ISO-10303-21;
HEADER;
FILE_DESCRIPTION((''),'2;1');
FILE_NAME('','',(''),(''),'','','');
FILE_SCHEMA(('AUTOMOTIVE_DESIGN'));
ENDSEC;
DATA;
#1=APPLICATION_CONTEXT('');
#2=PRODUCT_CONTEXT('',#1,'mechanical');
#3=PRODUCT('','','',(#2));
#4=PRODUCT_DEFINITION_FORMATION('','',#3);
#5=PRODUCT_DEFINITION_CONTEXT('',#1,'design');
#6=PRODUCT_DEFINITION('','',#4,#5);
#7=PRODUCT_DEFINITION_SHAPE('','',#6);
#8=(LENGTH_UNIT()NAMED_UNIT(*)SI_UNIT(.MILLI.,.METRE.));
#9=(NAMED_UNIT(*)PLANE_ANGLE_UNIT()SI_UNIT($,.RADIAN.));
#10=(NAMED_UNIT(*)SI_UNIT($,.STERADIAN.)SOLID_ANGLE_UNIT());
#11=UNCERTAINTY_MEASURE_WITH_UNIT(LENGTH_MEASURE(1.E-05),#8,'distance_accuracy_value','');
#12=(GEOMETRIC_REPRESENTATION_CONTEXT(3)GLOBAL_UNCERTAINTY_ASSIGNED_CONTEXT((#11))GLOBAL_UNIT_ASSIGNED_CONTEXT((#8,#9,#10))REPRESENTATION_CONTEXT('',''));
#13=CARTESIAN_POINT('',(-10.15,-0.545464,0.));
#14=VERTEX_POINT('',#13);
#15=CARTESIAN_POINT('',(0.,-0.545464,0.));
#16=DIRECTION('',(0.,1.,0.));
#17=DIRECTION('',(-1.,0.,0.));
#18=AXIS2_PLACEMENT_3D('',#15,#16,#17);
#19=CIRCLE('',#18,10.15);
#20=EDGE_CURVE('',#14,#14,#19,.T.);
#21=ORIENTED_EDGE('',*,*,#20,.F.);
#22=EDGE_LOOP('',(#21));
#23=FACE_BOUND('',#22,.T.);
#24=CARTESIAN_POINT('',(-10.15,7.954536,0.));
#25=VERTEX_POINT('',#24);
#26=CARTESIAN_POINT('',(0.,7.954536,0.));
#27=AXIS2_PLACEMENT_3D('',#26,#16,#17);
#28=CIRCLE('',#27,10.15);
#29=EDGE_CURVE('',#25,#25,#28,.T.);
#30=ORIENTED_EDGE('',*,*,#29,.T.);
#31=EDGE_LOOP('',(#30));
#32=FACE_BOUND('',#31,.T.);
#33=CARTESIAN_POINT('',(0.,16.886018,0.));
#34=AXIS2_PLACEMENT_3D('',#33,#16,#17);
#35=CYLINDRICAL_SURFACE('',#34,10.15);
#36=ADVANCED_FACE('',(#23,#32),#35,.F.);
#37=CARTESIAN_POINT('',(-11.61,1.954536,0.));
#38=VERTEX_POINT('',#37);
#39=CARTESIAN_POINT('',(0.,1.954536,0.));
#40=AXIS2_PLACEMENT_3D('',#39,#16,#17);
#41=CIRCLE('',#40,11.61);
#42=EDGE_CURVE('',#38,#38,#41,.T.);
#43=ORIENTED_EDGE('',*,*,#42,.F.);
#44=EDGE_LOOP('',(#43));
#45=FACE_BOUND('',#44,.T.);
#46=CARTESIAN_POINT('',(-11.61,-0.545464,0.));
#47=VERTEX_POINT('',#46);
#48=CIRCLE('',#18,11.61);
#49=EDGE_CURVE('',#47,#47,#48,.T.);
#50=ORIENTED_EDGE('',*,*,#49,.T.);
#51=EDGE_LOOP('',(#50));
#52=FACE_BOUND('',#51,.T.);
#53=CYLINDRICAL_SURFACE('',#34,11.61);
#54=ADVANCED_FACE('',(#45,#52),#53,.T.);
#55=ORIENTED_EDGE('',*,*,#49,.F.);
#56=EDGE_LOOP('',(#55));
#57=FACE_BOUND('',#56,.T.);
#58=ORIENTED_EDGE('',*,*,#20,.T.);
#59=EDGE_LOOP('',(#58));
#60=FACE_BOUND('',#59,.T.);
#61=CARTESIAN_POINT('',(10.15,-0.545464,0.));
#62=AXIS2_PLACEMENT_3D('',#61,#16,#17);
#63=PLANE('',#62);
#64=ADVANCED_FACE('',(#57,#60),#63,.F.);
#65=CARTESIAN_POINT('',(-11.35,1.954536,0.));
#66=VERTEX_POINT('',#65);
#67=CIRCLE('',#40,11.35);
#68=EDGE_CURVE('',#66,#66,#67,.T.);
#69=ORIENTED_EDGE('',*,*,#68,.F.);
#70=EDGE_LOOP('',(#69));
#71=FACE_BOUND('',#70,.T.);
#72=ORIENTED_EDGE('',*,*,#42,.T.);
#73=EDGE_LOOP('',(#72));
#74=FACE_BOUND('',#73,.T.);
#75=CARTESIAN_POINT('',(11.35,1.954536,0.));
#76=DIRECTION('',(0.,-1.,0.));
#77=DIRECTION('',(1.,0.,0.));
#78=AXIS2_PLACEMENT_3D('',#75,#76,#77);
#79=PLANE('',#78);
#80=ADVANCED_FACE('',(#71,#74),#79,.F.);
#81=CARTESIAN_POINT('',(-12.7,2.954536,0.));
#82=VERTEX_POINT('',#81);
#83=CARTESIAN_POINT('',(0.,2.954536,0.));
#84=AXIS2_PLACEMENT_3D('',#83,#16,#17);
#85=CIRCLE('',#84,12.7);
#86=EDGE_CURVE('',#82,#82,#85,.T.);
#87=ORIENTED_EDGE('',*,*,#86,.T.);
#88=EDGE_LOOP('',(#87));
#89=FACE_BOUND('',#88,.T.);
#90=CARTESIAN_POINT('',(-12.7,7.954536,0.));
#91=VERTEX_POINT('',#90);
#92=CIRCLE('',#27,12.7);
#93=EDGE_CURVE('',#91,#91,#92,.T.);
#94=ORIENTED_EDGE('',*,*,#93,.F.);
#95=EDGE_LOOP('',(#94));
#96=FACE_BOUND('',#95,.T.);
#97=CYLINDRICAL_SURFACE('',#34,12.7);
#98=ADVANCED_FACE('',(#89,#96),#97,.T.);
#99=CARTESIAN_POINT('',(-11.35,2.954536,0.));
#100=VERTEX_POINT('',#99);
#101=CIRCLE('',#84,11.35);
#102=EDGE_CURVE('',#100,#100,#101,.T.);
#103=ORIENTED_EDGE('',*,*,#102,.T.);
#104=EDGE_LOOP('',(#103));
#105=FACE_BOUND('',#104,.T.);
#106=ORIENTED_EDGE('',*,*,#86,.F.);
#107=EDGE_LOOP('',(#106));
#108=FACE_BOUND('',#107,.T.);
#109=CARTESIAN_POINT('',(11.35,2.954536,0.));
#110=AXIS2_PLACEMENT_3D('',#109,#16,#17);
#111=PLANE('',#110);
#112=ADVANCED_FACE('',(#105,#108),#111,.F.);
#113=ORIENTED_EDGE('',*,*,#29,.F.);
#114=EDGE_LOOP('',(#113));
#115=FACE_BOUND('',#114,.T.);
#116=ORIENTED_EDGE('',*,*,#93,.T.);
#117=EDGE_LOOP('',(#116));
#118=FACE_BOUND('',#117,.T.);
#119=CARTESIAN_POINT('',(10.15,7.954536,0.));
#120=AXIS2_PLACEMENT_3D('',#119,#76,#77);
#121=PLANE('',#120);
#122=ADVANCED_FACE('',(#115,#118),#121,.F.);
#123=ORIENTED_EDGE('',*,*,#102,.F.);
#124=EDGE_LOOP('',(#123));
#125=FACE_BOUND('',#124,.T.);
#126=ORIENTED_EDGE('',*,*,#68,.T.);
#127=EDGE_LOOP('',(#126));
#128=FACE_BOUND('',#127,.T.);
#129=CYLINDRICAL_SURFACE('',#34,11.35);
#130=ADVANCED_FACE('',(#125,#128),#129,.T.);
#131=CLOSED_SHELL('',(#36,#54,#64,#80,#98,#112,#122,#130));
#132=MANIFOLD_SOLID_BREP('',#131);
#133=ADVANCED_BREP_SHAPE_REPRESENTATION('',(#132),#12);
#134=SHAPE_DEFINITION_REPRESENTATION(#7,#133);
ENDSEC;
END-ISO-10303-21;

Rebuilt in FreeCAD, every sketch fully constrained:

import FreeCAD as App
import Part
import Sketcher
from FreeCAD import Vector


def add_polygon(sketch, points):
    """Adds a closed chain of lines whose ends are joined by coincident constraints."""
    first, n = sketch.GeometryCount, len(points)
    for a, b in zip(points, points[1:] + points[:1]):
        sketch.addGeometry(Part.LineSegment(App.Vector(*a, 0), App.Vector(*b, 0)), False)
    for i in range(n):
        sketch.addConstraint(Sketcher.Constraint("Coincident", first + i, 2, first + (i + 1) % n, 1))

doc = App.newDocument("Part")
body = doc.addObject("PartDesign::Body", "Body")

# Sketch on XY plane
sketch1 = doc.addObject("Sketcher::SketchObject", "Sketch")
body.addObject(sketch1)
sketch1.AttachmentSupport = (doc.XY_Plane, [""])
sketch1.MapMode = "FlatFace"
add_polygon(sketch1, [(10.15, 7.95), (10.15, -0.55), (11.61, -0.55), (11.61, 1.95), (11.35, 1.95), (11.35, 2.95), (12.7, 2.95), (12.7, 7.95)])  # lines 0-7
sketch1.addConstraint([
    Sketcher.Constraint("Vertical", 0),
    Sketcher.Constraint("Horizontal", 1),
    Sketcher.Constraint("Vertical", 2),
    Sketcher.Constraint("Horizontal", 3),
    Sketcher.Constraint("Vertical", 4),
    Sketcher.Constraint("Horizontal", 5),
    Sketcher.Constraint("Vertical", 6),
    Sketcher.Constraint("Horizontal", 7),
    Sketcher.Constraint("DistanceY", 4, 1, 4, 2, 1.0),
    Sketcher.Constraint("DistanceY", 6, 1, 6, 2, 5.0),
    Sketcher.Constraint("DistanceY", 0, 2, 0, 1, 8.5),
    Sketcher.Constraint("DistanceX", 1, 1, 1, 2, 1.46),
    Sketcher.Constraint("DistanceX", 3, 2, 3, 1, 0.26),
    Sketcher.Constraint("DistanceX", 5, 1, 5, 2, 1.35),
    Sketcher.Constraint("DistanceX", -1, 1, 5, 2, 12.7),
    Sketcher.Constraint("DistanceY", 0, 2, -1, 1, 0.545464),
])
revolution = doc.addObject("PartDesign::Revolution", "Revolution")
body.addObject(revolution)
revolution.Profile = sketch1
revolution.ReferenceAxis = (sketch1, ["V_Axis"])
revolution.Angle = 360

doc.recompute()
